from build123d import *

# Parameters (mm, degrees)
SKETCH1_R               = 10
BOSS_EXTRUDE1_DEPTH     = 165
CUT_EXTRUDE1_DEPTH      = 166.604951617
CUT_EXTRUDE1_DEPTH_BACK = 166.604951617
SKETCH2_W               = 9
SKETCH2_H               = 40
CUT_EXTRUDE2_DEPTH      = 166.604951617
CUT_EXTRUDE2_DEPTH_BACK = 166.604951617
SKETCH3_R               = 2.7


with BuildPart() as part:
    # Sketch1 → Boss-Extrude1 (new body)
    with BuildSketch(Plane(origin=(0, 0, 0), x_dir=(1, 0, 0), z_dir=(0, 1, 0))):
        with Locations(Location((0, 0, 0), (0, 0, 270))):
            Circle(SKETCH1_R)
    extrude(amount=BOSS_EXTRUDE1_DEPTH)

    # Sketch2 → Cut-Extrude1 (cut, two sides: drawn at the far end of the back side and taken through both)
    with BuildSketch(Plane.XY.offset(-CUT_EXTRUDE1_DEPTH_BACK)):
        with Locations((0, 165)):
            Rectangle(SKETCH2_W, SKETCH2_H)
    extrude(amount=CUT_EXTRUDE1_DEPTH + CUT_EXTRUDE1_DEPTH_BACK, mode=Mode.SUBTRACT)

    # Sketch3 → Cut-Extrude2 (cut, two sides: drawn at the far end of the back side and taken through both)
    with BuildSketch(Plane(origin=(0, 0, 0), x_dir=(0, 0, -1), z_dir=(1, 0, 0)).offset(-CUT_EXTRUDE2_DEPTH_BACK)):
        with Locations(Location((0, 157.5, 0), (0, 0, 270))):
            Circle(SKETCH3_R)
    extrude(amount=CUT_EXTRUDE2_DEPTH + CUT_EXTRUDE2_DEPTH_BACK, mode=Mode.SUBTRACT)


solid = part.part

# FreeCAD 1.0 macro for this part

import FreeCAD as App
import Part
import Sketcher

V = App.Vector

doc = App.newDocument("Part")
params = doc.addObject("Spreadsheet::Sheet", "Params")
for row, (alias, value) in enumerate([
    ("sketch1_diameter", "20 mm"),
    ("pad1_length", "165 mm"),
    ("sketch2_width", "9 mm"),
    ("sketch2_height", "40 mm"),
    ("sketch3_diameter", "5.4 mm"),
], start=1):
    params.set(f"A{row}", alias)
    params.set(f"B{row}", "=" + value)
    params.setAlias(f"B{row}", alias)

body = doc.addObject("PartDesign::Body", "Body")

# Sketch on XZ plane
sketch1 = doc.addObject("Sketcher::SketchObject", "Sketch")
body.addObject(sketch1)
sketch1.AttachmentSupport = (doc.XZ_Plane, [""])
sketch1.MapMode = "FlatFace"
sketch1.addGeometry(Part.Circle(V(0, 0, 0), V(0, 0, 1), 10), False)
sketch1.addConstraint([
    Sketcher.Constraint("Coincident", 0, 3, -1, 1),
    Sketcher.Constraint("Diameter", 0, 20.0),
])
sketch1.setExpression("Constraints[1]", "Params.sketch1_diameter")
pad1 = doc.addObject("PartDesign::Pad", "Pad")
body.addObject(pad1)
pad1.Profile = sketch1
pad1.setExpression("Length", "Params.pad1_length")
pad1.Reversed = True

# Sketch on XY plane
sketch2 = doc.addObject("Sketcher::SketchObject", "Sketch001")
body.addObject(sketch2)
sketch2.AttachmentSupport = (doc.XY_Plane, [""])
sketch2.MapMode = "FlatFace"
sketch2.addGeometry([
    Part.LineSegment(V(-4, 185, 0), V(-4, 145, 0)),
    Part.LineSegment(V(-4, 145, 0), V(4, 145, 0)),
    Part.LineSegment(V(4, 145, 0), V(4, 185, 0)),
    Part.LineSegment(V(4, 185, 0), V(-4, 185, 0)),
], False)
sketch2.addConstraint([
    Sketcher.Constraint("Coincident", 0, 2, 1, 1),
    Sketcher.Constraint("Coincident", 1, 2, 2, 1),
    Sketcher.Constraint("Coincident", 2, 2, 3, 1),
    Sketcher.Constraint("Coincident", 3, 2, 0, 1),
    Sketcher.Constraint("Vertical", 0),
    Sketcher.Constraint("Horizontal", 1),
    Sketcher.Constraint("Vertical", 2),
    Sketcher.Constraint("Horizontal", 3),
    Sketcher.Constraint("DistanceX", 1, 1, 1, 2, 9.0),
    Sketcher.Constraint("DistanceY", 0, 2, 0, 1, 40.0),
    Sketcher.Constraint("DistanceY", -1, 1, 0, 2, 145.0),
    Sketcher.Constraint("DistanceX", 0, 2, -1, 1, 4.5),
])
sketch2.setExpression("Constraints[8]", "Params.sketch2_width")
sketch2.setExpression("Constraints[9]", "Params.sketch2_height")
pocket1 = doc.addObject("PartDesign::Pocket", "Pocket")
body.addObject(pocket1)
pocket1.Profile = sketch2
pocket1.Type = "ThroughAll"
pocket1.Midplane = True

# Sketch on YZ plane
sketch3 = doc.addObject("Sketcher::SketchObject", "Sketch002")
body.addObject(sketch3)
sketch3.AttachmentSupport = (doc.YZ_Plane, [""])
sketch3.MapMode = "FlatFace"
sketch3.addGeometry(Part.Circle(V(157.5, 0, 0), V(0, 0, 1), 2.7), False)
sketch3.addConstraint([
    Sketcher.Constraint("PointOnObject", 0, 3, -1),
    Sketcher.Constraint("Diameter", 0, 5.4),
    Sketcher.Constraint("DistanceX", -1, 1, 0, 3, 157.5),
])
sketch3.setExpression("Constraints[1]", "Params.sketch3_diameter")
pocket2 = doc.addObject("PartDesign::Pocket", "Pocket001")
body.addObject(pocket2)
pocket2.Profile = sketch3
pocket2.Type = "ThroughAll"
pocket2.Midplane = True

doc.recompute()
